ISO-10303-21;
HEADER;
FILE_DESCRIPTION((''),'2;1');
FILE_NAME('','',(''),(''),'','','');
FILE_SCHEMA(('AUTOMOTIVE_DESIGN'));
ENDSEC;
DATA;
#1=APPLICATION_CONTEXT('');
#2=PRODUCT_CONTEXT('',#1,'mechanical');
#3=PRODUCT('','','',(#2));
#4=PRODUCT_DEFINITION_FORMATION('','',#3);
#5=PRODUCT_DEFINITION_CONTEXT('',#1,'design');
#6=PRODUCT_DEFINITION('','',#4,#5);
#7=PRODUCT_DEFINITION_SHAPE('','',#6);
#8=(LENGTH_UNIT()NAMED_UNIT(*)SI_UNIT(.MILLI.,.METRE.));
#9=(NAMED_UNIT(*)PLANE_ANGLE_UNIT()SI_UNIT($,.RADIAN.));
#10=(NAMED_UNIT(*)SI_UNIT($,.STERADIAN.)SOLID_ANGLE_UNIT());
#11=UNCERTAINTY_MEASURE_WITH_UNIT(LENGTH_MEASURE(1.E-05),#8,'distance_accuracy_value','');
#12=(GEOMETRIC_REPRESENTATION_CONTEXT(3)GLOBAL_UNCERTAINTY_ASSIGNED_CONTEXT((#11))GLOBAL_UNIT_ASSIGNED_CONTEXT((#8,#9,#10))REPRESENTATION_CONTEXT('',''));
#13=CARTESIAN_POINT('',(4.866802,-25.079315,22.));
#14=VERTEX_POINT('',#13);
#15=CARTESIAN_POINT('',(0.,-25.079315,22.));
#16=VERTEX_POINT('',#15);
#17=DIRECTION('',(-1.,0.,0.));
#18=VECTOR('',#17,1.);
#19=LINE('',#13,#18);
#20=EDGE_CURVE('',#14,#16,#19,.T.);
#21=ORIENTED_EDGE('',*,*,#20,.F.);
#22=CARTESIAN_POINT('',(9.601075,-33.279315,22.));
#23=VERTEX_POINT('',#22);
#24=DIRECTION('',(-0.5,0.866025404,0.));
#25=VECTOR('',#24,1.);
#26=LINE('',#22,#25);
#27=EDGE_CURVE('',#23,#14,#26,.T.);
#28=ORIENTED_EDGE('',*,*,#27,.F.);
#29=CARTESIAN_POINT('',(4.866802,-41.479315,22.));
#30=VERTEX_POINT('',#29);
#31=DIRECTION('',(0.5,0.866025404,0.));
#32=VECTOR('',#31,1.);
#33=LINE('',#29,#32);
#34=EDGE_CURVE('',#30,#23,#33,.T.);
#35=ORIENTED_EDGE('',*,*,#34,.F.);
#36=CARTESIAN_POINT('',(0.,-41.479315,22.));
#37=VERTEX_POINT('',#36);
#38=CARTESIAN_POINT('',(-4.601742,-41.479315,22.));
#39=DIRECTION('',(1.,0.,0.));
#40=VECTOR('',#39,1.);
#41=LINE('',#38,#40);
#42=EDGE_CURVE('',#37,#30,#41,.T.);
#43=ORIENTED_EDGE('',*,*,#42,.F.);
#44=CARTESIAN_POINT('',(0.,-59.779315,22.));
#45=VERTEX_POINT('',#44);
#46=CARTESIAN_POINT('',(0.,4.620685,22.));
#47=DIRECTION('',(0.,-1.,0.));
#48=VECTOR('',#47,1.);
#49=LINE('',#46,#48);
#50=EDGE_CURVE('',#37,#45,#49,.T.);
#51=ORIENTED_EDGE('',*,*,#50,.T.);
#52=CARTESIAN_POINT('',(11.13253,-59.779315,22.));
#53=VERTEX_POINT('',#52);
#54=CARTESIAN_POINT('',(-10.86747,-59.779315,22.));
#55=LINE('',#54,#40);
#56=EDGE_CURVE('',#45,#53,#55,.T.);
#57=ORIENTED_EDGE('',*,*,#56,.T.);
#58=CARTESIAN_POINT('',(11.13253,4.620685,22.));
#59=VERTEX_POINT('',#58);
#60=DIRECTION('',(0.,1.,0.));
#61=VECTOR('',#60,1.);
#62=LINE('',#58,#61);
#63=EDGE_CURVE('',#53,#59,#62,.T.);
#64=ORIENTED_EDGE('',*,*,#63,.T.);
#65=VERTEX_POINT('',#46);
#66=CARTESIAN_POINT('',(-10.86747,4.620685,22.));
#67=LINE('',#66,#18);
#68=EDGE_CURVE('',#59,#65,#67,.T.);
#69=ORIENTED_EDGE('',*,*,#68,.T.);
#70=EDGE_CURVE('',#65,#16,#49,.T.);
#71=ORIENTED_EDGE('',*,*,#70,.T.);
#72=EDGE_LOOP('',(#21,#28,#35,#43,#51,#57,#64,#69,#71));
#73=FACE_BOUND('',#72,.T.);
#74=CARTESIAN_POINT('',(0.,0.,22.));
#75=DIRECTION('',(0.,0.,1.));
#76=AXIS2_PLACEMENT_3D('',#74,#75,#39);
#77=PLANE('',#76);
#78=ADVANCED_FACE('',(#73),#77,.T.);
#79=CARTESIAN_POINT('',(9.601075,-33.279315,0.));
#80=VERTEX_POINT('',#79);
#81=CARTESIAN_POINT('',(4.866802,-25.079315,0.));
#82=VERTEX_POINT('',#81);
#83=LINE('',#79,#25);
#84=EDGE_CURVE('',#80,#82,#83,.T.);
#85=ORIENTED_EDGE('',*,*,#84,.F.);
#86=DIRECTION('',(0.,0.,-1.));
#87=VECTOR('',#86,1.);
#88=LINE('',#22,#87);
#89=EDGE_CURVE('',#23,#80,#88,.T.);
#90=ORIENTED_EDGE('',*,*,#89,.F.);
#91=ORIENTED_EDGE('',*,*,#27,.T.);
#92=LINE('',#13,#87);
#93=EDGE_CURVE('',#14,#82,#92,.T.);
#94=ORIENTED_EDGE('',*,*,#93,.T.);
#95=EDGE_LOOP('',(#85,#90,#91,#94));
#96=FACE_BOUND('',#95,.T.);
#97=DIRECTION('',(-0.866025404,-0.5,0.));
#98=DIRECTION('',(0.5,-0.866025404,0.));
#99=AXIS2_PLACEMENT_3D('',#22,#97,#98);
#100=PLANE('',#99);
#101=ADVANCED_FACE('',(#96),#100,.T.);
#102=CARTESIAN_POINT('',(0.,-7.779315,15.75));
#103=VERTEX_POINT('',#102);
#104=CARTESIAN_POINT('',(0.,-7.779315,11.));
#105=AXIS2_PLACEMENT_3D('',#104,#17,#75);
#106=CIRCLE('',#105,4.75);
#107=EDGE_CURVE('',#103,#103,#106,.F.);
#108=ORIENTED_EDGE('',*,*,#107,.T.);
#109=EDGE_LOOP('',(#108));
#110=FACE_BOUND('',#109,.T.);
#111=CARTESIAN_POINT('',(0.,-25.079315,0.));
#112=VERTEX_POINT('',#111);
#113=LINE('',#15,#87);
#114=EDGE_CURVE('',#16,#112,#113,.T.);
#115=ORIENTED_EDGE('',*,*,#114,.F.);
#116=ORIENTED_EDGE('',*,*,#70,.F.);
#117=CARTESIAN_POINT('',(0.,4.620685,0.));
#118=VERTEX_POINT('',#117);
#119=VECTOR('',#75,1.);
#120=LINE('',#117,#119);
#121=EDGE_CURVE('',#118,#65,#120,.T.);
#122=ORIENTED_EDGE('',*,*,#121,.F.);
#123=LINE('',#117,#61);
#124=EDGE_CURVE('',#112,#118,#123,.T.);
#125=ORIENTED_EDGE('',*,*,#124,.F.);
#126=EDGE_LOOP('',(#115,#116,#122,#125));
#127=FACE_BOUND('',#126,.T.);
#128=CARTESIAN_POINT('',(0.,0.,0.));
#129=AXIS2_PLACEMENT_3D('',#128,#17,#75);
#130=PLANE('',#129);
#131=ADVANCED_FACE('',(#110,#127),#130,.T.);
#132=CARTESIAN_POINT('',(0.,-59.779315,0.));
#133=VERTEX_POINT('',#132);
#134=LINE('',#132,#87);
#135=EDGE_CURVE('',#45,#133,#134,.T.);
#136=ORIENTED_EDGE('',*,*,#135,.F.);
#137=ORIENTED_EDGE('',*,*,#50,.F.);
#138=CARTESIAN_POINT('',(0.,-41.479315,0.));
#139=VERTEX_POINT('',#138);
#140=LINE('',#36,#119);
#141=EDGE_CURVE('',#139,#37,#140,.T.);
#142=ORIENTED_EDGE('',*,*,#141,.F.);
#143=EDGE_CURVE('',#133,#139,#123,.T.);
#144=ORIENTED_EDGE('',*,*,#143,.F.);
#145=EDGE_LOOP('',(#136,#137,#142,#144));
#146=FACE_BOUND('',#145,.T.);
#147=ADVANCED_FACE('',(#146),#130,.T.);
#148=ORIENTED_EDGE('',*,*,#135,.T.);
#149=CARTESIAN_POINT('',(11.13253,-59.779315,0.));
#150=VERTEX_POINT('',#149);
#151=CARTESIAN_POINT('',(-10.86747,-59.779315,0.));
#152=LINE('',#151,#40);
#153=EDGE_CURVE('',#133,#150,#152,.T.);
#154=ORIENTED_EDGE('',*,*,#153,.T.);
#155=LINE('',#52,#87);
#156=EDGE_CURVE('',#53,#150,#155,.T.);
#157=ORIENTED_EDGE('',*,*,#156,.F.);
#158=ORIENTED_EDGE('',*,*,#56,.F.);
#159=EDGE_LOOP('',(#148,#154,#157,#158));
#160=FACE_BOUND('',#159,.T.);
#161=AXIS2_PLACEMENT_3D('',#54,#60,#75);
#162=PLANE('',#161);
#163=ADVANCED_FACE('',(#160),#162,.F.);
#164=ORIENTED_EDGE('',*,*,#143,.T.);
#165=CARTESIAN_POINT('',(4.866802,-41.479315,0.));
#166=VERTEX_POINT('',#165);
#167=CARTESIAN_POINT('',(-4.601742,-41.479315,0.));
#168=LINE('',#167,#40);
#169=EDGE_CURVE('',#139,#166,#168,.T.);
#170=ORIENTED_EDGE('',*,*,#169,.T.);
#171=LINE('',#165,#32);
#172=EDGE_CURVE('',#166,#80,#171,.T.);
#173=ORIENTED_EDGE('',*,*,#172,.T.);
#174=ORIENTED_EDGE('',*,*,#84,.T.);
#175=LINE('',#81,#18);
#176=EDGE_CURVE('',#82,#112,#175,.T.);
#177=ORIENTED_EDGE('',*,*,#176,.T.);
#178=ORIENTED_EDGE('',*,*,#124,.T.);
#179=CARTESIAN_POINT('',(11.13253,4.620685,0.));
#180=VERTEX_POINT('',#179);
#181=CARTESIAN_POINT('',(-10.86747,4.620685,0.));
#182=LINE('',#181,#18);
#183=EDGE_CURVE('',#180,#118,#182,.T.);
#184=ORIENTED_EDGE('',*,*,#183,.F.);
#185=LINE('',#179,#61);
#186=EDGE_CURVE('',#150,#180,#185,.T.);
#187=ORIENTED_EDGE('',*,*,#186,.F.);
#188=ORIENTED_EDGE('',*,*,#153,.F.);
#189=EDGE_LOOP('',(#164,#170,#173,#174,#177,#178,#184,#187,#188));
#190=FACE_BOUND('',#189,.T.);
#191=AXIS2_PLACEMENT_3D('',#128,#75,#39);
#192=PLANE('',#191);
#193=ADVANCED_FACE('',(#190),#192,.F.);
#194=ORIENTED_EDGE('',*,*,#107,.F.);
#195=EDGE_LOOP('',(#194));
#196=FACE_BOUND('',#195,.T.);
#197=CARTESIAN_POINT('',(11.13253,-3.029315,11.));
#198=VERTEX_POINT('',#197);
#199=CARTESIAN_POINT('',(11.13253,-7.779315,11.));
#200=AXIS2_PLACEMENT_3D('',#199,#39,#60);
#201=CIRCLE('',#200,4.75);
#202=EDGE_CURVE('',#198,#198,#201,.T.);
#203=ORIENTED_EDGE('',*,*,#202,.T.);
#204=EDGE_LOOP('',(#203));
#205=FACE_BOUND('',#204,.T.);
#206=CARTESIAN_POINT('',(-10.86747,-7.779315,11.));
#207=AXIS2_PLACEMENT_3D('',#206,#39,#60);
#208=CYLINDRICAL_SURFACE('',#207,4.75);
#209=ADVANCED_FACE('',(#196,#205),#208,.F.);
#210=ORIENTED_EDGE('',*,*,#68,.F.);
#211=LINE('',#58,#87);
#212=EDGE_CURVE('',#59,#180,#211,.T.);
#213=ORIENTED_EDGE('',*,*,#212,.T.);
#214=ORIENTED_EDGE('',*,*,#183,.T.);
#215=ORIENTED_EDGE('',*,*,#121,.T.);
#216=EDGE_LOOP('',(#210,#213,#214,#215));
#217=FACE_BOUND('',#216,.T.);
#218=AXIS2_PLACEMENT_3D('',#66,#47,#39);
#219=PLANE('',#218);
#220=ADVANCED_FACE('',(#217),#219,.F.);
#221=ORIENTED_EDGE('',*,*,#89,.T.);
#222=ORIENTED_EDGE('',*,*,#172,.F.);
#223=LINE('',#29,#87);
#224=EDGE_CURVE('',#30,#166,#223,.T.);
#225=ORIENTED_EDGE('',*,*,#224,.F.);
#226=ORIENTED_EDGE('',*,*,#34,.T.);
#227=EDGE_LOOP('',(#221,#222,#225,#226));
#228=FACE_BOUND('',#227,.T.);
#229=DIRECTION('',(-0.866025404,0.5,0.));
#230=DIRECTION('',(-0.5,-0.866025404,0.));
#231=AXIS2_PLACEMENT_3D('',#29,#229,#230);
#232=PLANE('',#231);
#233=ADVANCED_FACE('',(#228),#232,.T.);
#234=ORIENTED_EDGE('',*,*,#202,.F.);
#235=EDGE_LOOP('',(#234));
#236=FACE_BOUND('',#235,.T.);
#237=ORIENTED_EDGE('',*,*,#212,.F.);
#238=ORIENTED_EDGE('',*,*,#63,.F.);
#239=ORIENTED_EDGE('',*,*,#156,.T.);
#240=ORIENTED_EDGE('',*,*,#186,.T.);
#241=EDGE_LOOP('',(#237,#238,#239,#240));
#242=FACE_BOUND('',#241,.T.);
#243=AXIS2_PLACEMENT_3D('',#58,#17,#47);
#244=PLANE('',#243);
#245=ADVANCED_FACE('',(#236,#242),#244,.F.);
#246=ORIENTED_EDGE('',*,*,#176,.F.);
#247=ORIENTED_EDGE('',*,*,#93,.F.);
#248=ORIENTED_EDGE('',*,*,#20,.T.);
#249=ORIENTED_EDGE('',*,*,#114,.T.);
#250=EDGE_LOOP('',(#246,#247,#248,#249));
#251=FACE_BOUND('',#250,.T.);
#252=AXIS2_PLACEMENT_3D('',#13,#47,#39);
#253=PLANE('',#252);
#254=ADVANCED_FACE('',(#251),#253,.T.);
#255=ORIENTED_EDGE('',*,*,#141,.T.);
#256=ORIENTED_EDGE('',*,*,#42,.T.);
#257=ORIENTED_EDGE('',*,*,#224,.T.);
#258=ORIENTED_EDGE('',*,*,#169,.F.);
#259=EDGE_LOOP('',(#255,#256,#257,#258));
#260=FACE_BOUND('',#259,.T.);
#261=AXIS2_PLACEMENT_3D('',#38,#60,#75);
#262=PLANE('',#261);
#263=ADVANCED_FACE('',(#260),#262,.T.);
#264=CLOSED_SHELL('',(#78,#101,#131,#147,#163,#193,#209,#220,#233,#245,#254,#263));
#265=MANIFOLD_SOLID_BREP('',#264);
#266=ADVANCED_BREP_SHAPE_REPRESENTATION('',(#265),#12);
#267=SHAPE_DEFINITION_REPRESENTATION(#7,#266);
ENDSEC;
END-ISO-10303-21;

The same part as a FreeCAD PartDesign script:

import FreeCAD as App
import Part
import Sketcher

V = App.Vector
Q = App.Units.Quantity

doc = App.newDocument("Part")
body = doc.addObject("PartDesign::Body", "Body")

# Sketch on XY plane
sketch1 = body.newObject("Sketcher::SketchObject", "Sketch")
sketch1.AttachmentSupport = (doc.getObject("XY_Plane"), [""])
sketch1.MapMode = "FlatFace"
sketch1.addGeometry(Part.LineSegment(V(-10.86747, 4.620685, 0), V(-10.86747, -59.779315, 0)), False)
sketch1.addGeometry(Part.LineSegment(V(-10.86747, -59.779315, 0), V(11.13253, -59.779315, 0)), False)
sketch1.addGeometry(Part.LineSegment(V(11.13253, -59.779315, 0), V(11.13253, 4.620685, 0)), False)
sketch1.addGeometry(Part.LineSegment(V(11.13253, 4.620685, 0), V(-10.86747, 4.620685, 0)), False)
sketch1.addGeometry(Part.LineSegment(V(4.866802, -25.079315, 0), V(9.601075, -33.279315, 0)), False)
sketch1.addGeometry(Part.LineSegment(V(9.601075, -33.279315, 0), V(4.866802, -41.479315, 0)), False)
sketch1.addGeometry(Part.LineSegment(V(4.866802, -41.479315, 0), V(-4.601742, -41.479315, 0)), False)
sketch1.addGeometry(Part.LineSegment(V(-4.601742, -41.479315, 0), V(-9.336014, -33.279315, 0)), False)
sketch1.addGeometry(Part.LineSegment(V(-9.336014, -33.279315, 0), V(-4.601742, -25.079315, 0)), False)
sketch1.addGeometry(Part.LineSegment(V(-4.601742, -25.079315, 0), V(4.866802, -25.079315, 0)), False)
sketch1.addConstraint(Sketcher.Constraint("Coincident", 0, 2, 1, 1))
sketch1.addConstraint(Sketcher.Constraint("Coincident", 1, 2, 2, 1))
sketch1.addConstraint(Sketcher.Constraint("Coincident", 2, 2, 3, 1))
sketch1.addConstraint(Sketcher.Constraint("Coincident", 3, 2, 0, 1))
sketch1.addConstraint(Sketcher.Constraint("Coincident", 4, 2, 5, 1))
sketch1.addConstraint(Sketcher.Constraint("Coincident", 5, 2, 6, 1))
sketch1.addConstraint(Sketcher.Constraint("Coincident", 6, 2, 7, 1))
sketch1.addConstraint(Sketcher.Constraint("Coincident", 7, 2, 8, 1))
sketch1.addConstraint(Sketcher.Constraint("Coincident", 8, 2, 9, 1))
sketch1.addConstraint(Sketcher.Constraint("Coincident", 9, 2, 4, 1))
sketch1.addConstraint(Sketcher.Constraint("Vertical", 0))
sketch1.addConstraint(Sketcher.Constraint("Horizontal", 1))
sketch1.addConstraint(Sketcher.Constraint("Vertical", 2))
sketch1.addConstraint(Sketcher.Constraint("Horizontal", 3))
sketch1.addConstraint(Sketcher.Constraint("Horizontal", 6))
sketch1.addConstraint(Sketcher.Constraint("Horizontal", 9))
sketch1.addConstraint(Sketcher.Constraint("Parallel", 4, 7))
sketch1.addConstraint(Sketcher.Constraint("Parallel", 5, 8))
sketch1.addConstraint(Sketcher.Constraint("Horizontal", 4, 2, 7, 2))
sketch1.addConstraint(Sketcher.Constraint("Vertical", 6, 2, 8, 2))
sketch1.addConstraint(Sketcher.Constraint("Vertical", 5, 2, 9, 2))
sketch1.addConstraint(Sketcher.Constraint("DistanceX", 1, 1, 1, 2, 22.0))
sketch1.addConstraint(Sketcher.Constraint("Angle", 4, Q("-60 deg")))
sketch1.addConstraint(Sketcher.Constraint("DistanceY", 0, 2, 0, 1, 64.4))
sketch1.addConstraint(Sketcher.Constraint("DistanceY", 1, 2, 4, 2, 26.5))
sketch1.addConstraint(Sketcher.Constraint("DistanceY", 5, 2, 4, 2, 8.2))
sketch1.addConstraint(Sketcher.Constraint("DistanceX", 6, 2, 6, 1, 9.468544))
sketch1.addConstraint(Sketcher.Constraint("DistanceX", 0, 2, -1, 1, 10.86747))
sketch1.addConstraint(Sketcher.Constraint("DistanceY", 0, 2, -1, 1, 59.779315))
sketch1.addConstraint(Sketcher.Constraint("DistanceX", -1, 1, 4, 2, 9.601075))
pad1 = body.newObject("PartDesign::Pad", "Pad")
pad1.Profile = sketch1
pad1.Length = 22

# Sketch on YZ plane
sketch2 = body.newObject("Sketcher::SketchObject", "Sketch001")
sketch2.AttachmentSupport = (doc.getObject("YZ_Plane"), [""])
sketch2.MapMode = "FlatFace"
sketch2.AttachmentOffset = App.Placement(V(0, 0, 11.13253), App.Rotation())
sketch2.addGeometry(Part.Circle(V(-7.779315, 11, 0), V(0, 0, 1), 4.75), False)
sketch2.addConstraint(Sketcher.Constraint("Diameter", 0, 9.5))
sketch2.addConstraint(Sketcher.Constraint("DistanceY", -1, 1, 0, 3, 11.0))
sketch2.addConstraint(Sketcher.Constraint("DistanceX", 0, 3, -1, 1, 7.779315))
pocket1 = body.newObject("PartDesign::Pocket", "Pocket")
pocket1.Profile = sketch2
pocket1.Length = 22

# Sketch on YZ plane
sketch3 = body.newObject("Sketcher::SketchObject", "Sketch002")
sketch3.AttachmentSupport = (doc.getObject("YZ_Plane"), [""])
sketch3.MapMode = "FlatFace"
sketch3.addGeometry(Part.LineSegment(V(4.620685, 22, 0), V(-59.779315, 22, 0)), False)
sketch3.addGeometry(Part.LineSegment(V(-59.779315, 22, 0), V(-59.779315, 0, 0)), False)
sketch3.addGeometry(Part.LineSegment(V(-59.779315, 0, 0), V(4.620685, 0, 0)), False)
sketch3.addGeometry(Part.LineSegment(V(4.620685, 0, 0), V(4.620685, 22, 0)), False)
sketch3.addConstraint(Sketcher.Constraint("Coincident", 0, 2, 1, 1))
sketch3.addConstraint(Sketcher.Constraint("Coincident", 1, 2, 2, 1))
sketch3.addConstraint(Sketcher.Constraint("Coincident", 2, 2, 3, 1))
sketch3.addConstraint(Sketcher.Constraint("Coincident", 3, 2, 0, 1))
sketch3.addConstraint(Sketcher.Constraint("Horizontal", 0))
sketch3.addConstraint(Sketcher.Constraint("Vertical", 1))
sketch3.addConstraint(Sketcher.Constraint("Horizontal", 2))
sketch3.addConstraint(Sketcher.Constraint("Vertical", 3))
sketch3.addConstraint(Sketcher.Constraint("PointOnObject", 1, 2, -1))
sketch3.addConstraint(Sketcher.Constraint("DistanceY", 1, 2, 1, 1, 22.0))
sketch3.addConstraint(Sketcher.Constraint("DistanceX", 0, 2, 0, 1, 64.4))
sketch3.addConstraint(Sketcher.Constraint("DistanceX", 0, 2, -1, 1, 59.779315))
pocket2 = body.newObject("PartDesign::Pocket", "Pocket001")
pocket2.Profile = sketch3
pocket2.Length = 11

doc.recompute()
